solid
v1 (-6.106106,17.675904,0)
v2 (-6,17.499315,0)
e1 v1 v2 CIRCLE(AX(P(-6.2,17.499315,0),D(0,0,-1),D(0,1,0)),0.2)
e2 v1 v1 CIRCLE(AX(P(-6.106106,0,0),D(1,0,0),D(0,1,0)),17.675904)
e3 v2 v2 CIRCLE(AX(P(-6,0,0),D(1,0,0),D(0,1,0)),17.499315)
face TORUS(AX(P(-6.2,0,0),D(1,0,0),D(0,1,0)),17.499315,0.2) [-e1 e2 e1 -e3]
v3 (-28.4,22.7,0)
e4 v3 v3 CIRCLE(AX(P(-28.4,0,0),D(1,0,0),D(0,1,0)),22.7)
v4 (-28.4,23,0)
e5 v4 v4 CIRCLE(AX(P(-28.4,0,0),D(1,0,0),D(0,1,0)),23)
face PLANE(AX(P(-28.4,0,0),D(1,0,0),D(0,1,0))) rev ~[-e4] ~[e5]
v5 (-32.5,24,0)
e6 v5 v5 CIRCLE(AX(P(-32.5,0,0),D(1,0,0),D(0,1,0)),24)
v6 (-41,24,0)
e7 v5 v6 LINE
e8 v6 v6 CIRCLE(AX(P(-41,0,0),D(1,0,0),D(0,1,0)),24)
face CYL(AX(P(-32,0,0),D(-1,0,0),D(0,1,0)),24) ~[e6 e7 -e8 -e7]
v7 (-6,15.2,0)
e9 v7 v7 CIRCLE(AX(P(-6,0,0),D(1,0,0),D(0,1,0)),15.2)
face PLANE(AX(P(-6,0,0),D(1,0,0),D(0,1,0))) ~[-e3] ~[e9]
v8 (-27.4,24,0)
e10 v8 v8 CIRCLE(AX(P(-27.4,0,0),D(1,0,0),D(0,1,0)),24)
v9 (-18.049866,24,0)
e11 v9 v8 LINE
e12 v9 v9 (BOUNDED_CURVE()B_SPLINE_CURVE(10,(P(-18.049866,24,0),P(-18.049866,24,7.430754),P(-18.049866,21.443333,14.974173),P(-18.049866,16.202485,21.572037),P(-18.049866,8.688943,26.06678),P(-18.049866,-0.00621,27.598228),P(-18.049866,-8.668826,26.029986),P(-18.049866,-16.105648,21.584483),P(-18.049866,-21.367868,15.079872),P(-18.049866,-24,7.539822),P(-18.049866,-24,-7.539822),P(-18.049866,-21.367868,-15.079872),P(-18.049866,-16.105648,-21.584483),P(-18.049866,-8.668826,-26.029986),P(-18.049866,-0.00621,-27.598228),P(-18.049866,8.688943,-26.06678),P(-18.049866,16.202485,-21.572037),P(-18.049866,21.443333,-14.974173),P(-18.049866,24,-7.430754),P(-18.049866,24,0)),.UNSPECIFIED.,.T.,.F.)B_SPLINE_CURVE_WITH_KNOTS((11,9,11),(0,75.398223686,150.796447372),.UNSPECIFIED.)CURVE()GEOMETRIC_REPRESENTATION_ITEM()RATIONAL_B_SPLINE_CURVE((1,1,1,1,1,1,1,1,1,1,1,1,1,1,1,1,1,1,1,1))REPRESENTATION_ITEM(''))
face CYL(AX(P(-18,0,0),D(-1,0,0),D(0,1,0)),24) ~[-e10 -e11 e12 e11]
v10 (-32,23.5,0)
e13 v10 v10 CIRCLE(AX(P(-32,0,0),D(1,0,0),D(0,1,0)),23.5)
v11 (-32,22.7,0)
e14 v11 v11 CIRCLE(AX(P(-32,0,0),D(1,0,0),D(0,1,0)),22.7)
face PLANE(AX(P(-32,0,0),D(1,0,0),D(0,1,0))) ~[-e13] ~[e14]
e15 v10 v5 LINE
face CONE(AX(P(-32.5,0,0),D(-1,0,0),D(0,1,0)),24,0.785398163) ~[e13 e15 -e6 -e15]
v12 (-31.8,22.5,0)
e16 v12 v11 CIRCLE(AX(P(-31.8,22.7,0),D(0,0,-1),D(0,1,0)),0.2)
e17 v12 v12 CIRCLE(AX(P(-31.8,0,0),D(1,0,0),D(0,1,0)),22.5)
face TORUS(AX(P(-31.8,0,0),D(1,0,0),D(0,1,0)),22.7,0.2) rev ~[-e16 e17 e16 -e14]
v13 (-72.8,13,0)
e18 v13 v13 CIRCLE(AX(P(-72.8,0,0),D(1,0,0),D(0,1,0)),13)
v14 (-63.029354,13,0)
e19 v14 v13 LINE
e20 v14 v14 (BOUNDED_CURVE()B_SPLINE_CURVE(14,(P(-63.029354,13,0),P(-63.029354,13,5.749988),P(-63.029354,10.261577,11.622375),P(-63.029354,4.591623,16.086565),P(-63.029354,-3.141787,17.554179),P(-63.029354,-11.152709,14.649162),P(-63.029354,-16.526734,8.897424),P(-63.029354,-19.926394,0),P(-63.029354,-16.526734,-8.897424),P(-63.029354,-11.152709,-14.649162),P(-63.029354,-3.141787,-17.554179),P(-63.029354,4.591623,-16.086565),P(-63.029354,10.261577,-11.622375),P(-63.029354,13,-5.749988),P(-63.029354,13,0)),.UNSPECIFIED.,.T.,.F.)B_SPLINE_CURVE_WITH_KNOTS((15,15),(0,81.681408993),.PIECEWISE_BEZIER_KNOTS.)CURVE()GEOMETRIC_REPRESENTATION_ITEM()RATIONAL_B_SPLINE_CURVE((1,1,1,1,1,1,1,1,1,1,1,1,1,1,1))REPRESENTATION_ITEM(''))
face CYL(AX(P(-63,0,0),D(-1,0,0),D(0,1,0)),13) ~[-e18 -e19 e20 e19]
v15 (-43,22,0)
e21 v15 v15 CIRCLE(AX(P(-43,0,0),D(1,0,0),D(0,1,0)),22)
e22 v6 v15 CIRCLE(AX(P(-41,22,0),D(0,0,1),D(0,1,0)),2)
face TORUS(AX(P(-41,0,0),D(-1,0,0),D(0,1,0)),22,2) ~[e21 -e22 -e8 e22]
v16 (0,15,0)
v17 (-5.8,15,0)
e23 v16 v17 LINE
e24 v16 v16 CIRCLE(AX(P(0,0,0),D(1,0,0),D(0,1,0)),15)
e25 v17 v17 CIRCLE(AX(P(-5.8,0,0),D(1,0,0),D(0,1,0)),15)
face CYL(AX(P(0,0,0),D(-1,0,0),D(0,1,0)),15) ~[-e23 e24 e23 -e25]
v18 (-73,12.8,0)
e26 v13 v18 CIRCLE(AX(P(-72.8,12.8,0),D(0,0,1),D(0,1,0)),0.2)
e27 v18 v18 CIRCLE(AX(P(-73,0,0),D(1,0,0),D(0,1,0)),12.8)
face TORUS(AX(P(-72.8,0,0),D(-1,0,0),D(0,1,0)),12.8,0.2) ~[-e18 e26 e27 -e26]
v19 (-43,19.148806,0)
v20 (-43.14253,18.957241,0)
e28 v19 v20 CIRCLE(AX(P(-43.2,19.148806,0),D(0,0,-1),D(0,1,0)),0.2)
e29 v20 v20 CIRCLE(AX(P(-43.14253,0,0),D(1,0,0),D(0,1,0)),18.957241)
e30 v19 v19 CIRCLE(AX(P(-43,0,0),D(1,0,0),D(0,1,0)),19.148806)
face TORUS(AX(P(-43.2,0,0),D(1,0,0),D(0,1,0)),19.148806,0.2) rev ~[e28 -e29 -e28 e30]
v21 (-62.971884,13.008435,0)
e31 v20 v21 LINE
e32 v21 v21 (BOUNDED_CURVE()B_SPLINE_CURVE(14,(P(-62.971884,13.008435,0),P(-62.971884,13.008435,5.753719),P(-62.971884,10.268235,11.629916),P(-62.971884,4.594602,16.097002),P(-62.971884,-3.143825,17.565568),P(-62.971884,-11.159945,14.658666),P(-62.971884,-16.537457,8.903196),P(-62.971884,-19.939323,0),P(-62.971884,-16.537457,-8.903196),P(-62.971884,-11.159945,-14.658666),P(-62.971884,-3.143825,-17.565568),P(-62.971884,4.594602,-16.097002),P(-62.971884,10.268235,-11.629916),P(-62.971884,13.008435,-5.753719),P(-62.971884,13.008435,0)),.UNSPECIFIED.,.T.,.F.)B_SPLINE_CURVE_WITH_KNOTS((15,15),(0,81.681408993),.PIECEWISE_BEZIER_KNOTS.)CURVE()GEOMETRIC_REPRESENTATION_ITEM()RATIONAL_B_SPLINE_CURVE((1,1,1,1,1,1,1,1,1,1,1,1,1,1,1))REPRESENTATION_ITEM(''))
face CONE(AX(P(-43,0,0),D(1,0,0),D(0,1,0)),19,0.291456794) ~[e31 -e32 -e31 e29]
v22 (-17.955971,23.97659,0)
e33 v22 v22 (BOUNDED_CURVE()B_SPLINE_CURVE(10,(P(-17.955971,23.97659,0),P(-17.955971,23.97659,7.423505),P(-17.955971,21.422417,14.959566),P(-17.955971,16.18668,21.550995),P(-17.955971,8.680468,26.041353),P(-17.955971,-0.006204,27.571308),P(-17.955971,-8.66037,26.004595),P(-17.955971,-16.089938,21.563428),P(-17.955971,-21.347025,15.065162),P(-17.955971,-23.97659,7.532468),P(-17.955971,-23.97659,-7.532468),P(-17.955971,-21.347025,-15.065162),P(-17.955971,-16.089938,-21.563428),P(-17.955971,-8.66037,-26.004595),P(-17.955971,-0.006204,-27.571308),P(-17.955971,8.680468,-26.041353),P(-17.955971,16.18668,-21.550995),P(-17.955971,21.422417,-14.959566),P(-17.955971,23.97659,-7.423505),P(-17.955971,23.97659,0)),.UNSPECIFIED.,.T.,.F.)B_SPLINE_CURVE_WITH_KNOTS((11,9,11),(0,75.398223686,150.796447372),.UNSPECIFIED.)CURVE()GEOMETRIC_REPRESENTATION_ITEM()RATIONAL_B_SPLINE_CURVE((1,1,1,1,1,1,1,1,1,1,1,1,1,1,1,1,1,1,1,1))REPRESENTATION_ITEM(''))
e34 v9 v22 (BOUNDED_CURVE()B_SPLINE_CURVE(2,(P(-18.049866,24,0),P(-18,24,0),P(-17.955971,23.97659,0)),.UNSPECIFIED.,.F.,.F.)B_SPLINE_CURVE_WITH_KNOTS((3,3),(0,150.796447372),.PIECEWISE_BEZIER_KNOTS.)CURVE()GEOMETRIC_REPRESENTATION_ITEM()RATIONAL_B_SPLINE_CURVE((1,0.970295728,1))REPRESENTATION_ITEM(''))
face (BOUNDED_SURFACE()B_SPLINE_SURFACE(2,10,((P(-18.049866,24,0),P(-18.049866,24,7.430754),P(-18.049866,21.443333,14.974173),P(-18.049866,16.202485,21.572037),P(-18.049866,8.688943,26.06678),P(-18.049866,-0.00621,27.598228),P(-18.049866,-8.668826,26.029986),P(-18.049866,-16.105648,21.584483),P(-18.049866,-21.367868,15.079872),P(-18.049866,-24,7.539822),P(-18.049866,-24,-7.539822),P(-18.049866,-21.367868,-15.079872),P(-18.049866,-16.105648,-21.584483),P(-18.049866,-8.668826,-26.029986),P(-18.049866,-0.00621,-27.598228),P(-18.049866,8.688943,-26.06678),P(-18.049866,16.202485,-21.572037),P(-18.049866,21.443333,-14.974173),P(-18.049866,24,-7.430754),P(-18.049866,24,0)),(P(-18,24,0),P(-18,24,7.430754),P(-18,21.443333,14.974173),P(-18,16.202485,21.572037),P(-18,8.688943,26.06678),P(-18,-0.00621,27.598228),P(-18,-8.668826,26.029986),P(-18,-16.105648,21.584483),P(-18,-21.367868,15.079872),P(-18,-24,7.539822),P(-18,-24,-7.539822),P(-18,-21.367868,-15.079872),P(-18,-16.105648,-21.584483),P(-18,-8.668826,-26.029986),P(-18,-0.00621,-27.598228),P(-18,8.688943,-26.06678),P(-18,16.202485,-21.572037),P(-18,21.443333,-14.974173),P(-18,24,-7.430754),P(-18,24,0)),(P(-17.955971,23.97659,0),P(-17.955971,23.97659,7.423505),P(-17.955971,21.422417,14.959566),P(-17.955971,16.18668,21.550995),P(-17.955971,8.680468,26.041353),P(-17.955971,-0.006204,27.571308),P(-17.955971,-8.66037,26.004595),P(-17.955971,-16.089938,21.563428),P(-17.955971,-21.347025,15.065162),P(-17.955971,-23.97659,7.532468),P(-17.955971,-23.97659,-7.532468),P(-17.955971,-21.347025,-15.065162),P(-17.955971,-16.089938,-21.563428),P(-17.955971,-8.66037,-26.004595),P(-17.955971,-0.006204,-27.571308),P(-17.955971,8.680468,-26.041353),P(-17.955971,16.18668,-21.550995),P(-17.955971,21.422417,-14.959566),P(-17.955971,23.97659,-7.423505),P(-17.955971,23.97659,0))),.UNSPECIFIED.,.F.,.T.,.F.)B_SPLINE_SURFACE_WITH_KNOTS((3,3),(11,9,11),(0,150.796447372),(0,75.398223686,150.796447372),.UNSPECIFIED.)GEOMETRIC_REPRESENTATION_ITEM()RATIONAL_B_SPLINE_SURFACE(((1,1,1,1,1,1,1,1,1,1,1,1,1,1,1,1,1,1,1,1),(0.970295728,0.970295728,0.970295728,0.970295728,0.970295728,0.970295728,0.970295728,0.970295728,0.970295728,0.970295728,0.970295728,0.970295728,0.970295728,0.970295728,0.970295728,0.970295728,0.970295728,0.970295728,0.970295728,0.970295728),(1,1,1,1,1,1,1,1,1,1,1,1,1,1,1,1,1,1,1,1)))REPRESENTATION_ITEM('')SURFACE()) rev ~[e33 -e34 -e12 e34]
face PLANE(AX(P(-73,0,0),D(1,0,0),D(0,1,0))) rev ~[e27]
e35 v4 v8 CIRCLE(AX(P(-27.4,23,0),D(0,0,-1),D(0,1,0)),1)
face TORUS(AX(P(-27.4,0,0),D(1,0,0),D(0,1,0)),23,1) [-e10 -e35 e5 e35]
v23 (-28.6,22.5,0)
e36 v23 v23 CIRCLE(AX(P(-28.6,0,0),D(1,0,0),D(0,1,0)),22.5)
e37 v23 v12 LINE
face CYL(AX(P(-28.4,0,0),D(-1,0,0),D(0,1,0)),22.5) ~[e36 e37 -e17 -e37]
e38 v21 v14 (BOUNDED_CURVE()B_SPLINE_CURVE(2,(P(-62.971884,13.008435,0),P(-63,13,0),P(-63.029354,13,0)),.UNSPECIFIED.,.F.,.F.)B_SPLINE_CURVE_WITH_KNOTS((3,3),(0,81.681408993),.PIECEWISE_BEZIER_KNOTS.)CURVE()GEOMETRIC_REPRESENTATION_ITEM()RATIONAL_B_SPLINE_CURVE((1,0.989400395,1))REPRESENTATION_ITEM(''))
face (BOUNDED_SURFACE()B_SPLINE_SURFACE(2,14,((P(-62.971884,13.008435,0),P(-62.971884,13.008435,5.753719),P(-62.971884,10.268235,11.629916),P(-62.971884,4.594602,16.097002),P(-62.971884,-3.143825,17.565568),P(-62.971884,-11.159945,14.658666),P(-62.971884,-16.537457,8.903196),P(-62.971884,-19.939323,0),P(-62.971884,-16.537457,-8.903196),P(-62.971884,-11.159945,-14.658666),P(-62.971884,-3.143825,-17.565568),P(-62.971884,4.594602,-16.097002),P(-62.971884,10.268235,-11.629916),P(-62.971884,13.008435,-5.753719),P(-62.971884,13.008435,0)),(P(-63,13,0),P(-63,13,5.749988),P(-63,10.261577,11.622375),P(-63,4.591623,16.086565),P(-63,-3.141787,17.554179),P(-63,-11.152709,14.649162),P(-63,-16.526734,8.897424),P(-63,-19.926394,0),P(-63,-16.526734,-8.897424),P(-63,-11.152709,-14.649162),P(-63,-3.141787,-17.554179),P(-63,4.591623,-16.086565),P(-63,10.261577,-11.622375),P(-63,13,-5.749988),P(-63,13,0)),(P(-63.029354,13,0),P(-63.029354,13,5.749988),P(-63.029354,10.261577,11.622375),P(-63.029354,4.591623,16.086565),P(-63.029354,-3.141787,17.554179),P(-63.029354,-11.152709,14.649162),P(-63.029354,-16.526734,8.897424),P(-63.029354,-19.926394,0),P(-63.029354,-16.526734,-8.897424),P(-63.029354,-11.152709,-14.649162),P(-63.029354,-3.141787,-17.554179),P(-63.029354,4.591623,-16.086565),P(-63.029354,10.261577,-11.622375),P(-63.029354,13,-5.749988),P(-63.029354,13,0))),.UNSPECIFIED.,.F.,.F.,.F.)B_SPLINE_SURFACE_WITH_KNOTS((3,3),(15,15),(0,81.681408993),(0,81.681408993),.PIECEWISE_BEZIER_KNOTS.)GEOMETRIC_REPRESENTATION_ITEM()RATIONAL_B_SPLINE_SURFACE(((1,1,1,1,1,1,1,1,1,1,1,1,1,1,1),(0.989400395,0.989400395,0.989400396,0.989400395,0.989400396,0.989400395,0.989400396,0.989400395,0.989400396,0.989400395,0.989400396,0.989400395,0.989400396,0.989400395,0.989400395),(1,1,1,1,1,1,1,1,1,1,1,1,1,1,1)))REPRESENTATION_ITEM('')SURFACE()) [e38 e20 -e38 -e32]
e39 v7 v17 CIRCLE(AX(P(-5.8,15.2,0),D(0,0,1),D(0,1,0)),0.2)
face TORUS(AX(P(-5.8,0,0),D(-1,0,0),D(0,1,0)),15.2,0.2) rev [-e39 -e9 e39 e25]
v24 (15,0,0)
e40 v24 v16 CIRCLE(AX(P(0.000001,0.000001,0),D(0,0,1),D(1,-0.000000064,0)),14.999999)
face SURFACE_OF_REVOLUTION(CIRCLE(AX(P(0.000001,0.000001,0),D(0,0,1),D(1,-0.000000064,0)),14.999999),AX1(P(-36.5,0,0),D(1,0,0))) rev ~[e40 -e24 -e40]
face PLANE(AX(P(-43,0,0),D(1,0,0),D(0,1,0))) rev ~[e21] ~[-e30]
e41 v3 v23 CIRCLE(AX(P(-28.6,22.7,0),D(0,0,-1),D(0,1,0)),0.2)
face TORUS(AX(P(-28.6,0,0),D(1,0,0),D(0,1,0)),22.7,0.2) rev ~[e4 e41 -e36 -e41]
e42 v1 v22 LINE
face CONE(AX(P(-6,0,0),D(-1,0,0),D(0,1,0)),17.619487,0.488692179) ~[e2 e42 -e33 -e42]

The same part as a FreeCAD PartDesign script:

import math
import FreeCAD as App
import Part
import Sketcher
Q = App.Units.Quantity


def edges_at(feature, points):
    """Names of the edges that pass closest to the given points."""
    edges = feature.Shape.Edges
    near = lambda p: min(range(len(edges)), key=lambda i: edges[i].distToShape(Part.Vertex(*p))[0])
    return sorted({f"Edge{near(p) + 1}" for p in points})

doc = App.newDocument("Part")
body = doc.addObject("PartDesign::Body", "Body")

# Sketch on XY plane
sketch1 = doc.addObject("Sketcher::SketchObject", "Sketch")
body.addObject(sketch1)
sketch1.AttachmentSupport = (doc.XY_Plane, [""])
sketch1.MapMode = "FlatFace"
sketch1.addGeometry(Part.ArcOfCircle(Part.Circle(App.Vector(0, 0, 0), App.Vector(0, 0, 1), 15), math.radians(0), math.radians(90)), False)
sketch1.addGeometry(Part.LineSegment(App.Vector(0, 15, 0), App.Vector(-6, 15, 0)), False)
sketch1.addGeometry(Part.LineSegment(App.Vector(-6, 15, 0), App.Vector(-6, 17.6, 0)), False)
sketch1.addGeometry(Part.LineSegment(App.Vector(-6, 17.6, 0), App.Vector(-18, 24, 0)), False)
sketch1.addGeometry(Part.LineSegment(App.Vector(-18, 24, 0), App.Vector(-28.4, 24, 0)), False)
sketch1.addGeometry(Part.LineSegment(App.Vector(-28.4, 24, 0), App.Vector(-28.4, 22.5, 0)), False)
sketch1.addGeometry(Part.LineSegment(App.Vector(-28.4, 22.5, 0), App.Vector(-32, 22.5, 0)), False)
sketch1.addGeometry(Part.LineSegment(App.Vector(-32, 22.5, 0), App.Vector(-32, 24, 0)), False)
sketch1.addGeometry(Part.LineSegment(App.Vector(-32, 24, 0), App.Vector(-43, 24, 0)), False)
sketch1.addGeometry(Part.LineSegment(App.Vector(-43, 24, 0), App.Vector(-43, 19, 0)), False)
sketch1.addGeometry(Part.LineSegment(App.Vector(-43, 19, 0), App.Vector(-63, 13, 0)), False)
sketch1.addGeometry(Part.LineSegment(App.Vector(-63, 13, 0), App.Vector(-73, 13, 0)), False)
sketch1.addGeometry(Part.LineSegment(App.Vector(-73, 13, 0), App.Vector(-73, 0, 0)), False)
sketch1.addGeometry(Part.LineSegment(App.Vector(-73, 0, 0), App.Vector(15, 0, 0)), False)
sketch1.addConstraint(Sketcher.Constraint("Tangent", 0, 2, 1, 1))
sketch1.addConstraint(Sketcher.Constraint("Coincident", 1, 2, 2, 1))
sketch1.addConstraint(Sketcher.Constraint("Coincident", 2, 2, 3, 1))
sketch1.addConstraint(Sketcher.Constraint("Coincident", 3, 2, 4, 1))
sketch1.addConstraint(Sketcher.Constraint("Coincident", 4, 2, 5, 1))
sketch1.addConstraint(Sketcher.Constraint("Coincident", 5, 2, 6, 1))
sketch1.addConstraint(Sketcher.Constraint("Coincident", 6, 2, 7, 1))
sketch1.addConstraint(Sketcher.Constraint("Coincident", 7, 2, 8, 1))
sketch1.addConstraint(Sketcher.Constraint("Coincident", 8, 2, 9, 1))
sketch1.addConstraint(Sketcher.Constraint("Coincident", 9, 2, 10, 1))
sketch1.addConstraint(Sketcher.Constraint("Coincident", 10, 2, 11, 1))
sketch1.addConstraint(Sketcher.Constraint("Coincident", 11, 2, 12, 1))
sketch1.addConstraint(Sketcher.Constraint("Coincident", 12, 2, 13, 1))
sketch1.addConstraint(Sketcher.Constraint("Coincident", 13, 2, 0, 1))
sketch1.addConstraint(Sketcher.Constraint("Horizontal", 1))
sketch1.addConstraint(Sketcher.Constraint("Vertical", 2))
sketch1.addConstraint(Sketcher.Constraint("Horizontal", 4))
sketch1.addConstraint(Sketcher.Constraint("Vertical", 5))
sketch1.addConstraint(Sketcher.Constraint("Horizontal", 6))
sketch1.addConstraint(Sketcher.Constraint("Vertical", 7))
sketch1.addConstraint(Sketcher.Constraint("Horizontal", 8))
sketch1.addConstraint(Sketcher.Constraint("Vertical", 9))
sketch1.addConstraint(Sketcher.Constraint("Horizontal", 11))
sketch1.addConstraint(Sketcher.Constraint("Vertical", 12))
sketch1.addConstraint(Sketcher.Constraint("Horizontal", 13))
sketch1.addConstraint(Sketcher.Constraint("Coincident", 0, 3, -1, 1))
sketch1.addConstraint(Sketcher.Constraint("PointOnObject", 12, 2, -1))
sketch1.addConstraint(Sketcher.Constraint("Horizontal", 4, 2, 7, 2))
sketch1.addConstraint(Sketcher.Constraint("Radius", 0, 14.999999))
sketch1.addConstraint(Sketcher.Constraint("DistanceX", 1, 2, 1, 1, 6.0))
sketch1.addConstraint(Sketcher.Constraint("DistanceX", 8, 2, 8, 1, 11.0))
sketch1.addConstraint(Sketcher.Constraint("DistanceX", 11, 2, 11, 1, 10.0))
sketch1.addConstraint(Sketcher.Constraint("DistanceX", 13, 1, 13, 2, 88.0))
sketch1.addConstraint(Sketcher.Constraint("DistanceY", 9, 2, 9, 1, 5.0))
sketch1.addConstraint(Sketcher.Constraint("DistanceY", 12, 2, 12, 1, 13.0))
sketch1.addConstraint(Sketcher.Constraint("Angle", 3, Q("152.000001 deg")))
sketch1.addConstraint(Sketcher.Constraint("DistanceX", 4, 2, 4, 1, 10.4))
sketch1.addConstraint(Sketcher.Constraint("DistanceX", 6, 2, 6, 1, 3.6))
sketch1.addConstraint(Sketcher.Constraint("DistanceY", 5, 2, 5, 1, 1.5))
sketch1.addConstraint(Sketcher.Constraint("DistanceX", 3, 2, -1, 1, 18.0))
sketch1.addConstraint(Sketcher.Constraint("DistanceY", -1, 1, 3, 2, 24.0))
revolution = doc.addObject("PartDesign::Revolution", "Revolution")
body.addObject(revolution)
revolution.Profile = sketch1
revolution.ReferenceAxis = (sketch1, ["H_Axis"])
revolution.Angle = 360
doc.recompute()

fillet = doc.addObject("PartDesign::Fillet", "Fillet")
body.addObject(fillet)
fillet.Base = (revolution, edges_at(revolution, [(-43, -24, 0)]))
fillet.Radius = 2
doc.recompute()

fillet2 = doc.addObject("PartDesign::Fillet", "Fillet001")
body.addObject(fillet2)
fillet2.Base = (fillet, edges_at(fillet, [(-28.4, -24, 0)]))
fillet2.Radius = 1
doc.recompute()

chamfer = doc.addObject("PartDesign::Chamfer", "Chamfer")
body.addObject(chamfer)
chamfer.Base = (fillet2, edges_at(fillet2, [(-32, -24, 0)]))
chamfer.Size = 0.5
doc.recompute()

fillet3 = doc.addObject("PartDesign::Fillet", "Fillet002")
body.addObject(fillet3)
fillet3.Base = (chamfer, edges_at(chamfer, [
    (-73, -13, 0),
    (-63, -13, 0),
    (-18, -24, 0),
    (-6, -17.619, 0),
]))
fillet3.Radius = 0.2
doc.recompute()

fillet4 = doc.addObject("PartDesign::Fillet", "Fillet003")
body.addObject(fillet4)
fillet4.Base = (fillet3, edges_at(fillet3, [
    (-6, -15, 0),
    (0, -15, 0),
    (-32, -22.5, 0),
    (-28.4, -22.5, 0),
    (-30.2, 22.5, 0),
    (-43, -19, 0),
]))
fillet4.Radius = 0.2

doc.recompute()
